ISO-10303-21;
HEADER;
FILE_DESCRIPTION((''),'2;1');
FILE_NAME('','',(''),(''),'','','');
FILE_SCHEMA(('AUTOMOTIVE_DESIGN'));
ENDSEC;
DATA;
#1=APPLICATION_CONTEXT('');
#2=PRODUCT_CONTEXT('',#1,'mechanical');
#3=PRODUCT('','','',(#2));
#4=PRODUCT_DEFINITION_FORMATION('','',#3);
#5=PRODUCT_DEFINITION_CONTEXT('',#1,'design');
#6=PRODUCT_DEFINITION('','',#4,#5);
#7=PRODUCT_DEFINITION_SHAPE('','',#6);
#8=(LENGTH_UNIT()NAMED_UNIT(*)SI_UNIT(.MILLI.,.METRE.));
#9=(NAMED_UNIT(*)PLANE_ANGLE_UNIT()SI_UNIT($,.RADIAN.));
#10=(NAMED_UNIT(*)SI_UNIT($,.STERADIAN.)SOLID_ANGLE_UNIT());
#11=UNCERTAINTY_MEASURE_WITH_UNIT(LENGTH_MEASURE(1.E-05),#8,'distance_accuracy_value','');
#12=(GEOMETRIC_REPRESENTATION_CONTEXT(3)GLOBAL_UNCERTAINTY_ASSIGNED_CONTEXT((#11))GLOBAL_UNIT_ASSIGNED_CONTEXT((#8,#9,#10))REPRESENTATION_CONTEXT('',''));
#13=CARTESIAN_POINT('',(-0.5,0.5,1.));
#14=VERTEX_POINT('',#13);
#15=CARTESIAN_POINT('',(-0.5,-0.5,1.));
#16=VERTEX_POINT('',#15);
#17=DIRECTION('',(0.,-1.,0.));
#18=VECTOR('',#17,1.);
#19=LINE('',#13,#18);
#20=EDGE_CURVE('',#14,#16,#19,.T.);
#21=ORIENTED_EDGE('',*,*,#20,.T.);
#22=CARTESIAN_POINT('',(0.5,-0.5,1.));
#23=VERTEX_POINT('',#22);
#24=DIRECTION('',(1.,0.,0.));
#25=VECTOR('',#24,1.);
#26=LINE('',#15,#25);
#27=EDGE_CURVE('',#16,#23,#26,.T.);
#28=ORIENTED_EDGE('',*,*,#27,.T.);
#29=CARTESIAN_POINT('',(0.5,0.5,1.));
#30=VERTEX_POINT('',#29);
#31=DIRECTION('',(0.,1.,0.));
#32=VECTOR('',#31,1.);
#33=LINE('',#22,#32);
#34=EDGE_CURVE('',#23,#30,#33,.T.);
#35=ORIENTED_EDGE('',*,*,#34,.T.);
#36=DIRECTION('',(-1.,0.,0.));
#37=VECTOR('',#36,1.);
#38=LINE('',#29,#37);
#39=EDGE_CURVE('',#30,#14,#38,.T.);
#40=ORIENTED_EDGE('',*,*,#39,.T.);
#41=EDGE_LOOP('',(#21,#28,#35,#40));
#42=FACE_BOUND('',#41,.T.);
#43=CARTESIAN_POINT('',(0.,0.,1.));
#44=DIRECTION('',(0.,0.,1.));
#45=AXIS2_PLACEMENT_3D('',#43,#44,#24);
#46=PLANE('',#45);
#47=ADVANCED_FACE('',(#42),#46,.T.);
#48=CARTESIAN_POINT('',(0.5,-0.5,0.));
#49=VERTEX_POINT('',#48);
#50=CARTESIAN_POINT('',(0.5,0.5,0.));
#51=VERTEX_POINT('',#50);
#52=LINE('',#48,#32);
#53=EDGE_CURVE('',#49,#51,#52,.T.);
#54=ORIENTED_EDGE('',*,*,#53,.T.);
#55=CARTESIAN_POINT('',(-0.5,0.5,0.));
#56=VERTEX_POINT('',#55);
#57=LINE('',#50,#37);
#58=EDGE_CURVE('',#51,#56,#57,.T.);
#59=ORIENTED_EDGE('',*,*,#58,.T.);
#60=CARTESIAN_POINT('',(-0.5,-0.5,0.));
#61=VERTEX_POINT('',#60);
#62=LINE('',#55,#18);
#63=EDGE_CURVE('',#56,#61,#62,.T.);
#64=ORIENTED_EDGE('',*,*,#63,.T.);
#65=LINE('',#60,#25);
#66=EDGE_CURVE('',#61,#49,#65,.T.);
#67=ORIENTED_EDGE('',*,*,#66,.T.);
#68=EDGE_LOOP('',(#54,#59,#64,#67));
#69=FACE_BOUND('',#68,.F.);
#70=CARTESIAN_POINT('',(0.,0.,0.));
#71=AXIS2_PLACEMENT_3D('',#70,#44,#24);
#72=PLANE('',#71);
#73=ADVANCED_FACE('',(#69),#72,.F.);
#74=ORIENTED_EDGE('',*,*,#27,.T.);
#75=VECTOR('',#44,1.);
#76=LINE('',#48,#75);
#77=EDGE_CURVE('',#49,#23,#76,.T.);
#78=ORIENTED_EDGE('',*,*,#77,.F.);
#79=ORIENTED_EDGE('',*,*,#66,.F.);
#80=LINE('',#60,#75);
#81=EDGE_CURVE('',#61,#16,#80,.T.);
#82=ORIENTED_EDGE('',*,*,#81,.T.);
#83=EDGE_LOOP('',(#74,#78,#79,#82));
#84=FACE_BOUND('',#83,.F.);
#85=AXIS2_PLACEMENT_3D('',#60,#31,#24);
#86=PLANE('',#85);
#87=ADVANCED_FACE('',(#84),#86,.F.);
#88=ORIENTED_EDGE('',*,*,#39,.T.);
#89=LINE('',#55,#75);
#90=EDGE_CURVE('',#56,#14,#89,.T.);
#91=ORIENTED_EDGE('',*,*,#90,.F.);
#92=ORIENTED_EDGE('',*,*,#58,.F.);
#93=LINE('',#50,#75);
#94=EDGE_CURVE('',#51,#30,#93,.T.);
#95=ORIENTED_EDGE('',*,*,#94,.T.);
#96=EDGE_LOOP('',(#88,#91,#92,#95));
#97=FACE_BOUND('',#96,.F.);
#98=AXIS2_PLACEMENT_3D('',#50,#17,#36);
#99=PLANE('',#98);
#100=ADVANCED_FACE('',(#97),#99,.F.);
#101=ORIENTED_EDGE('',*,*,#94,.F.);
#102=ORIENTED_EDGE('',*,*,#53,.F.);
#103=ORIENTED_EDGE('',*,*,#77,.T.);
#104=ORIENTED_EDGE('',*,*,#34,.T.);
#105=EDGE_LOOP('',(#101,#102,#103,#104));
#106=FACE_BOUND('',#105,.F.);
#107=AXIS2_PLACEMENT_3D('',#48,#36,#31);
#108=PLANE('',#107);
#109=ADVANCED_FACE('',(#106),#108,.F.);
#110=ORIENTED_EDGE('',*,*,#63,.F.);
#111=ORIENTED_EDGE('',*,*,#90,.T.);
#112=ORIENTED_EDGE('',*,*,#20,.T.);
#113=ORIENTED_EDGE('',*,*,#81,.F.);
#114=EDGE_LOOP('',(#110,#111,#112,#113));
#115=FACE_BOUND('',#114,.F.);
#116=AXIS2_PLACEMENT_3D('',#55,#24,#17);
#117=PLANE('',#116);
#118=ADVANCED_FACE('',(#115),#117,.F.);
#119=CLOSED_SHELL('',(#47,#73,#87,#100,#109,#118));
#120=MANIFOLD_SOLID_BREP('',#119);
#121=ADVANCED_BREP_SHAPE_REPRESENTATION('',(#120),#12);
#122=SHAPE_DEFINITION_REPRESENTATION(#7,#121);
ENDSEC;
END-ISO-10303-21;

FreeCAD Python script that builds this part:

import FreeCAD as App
import Part
import Sketcher
from FreeCAD import Vector
Q = App.Units.Quantity

doc = App.newDocument("Part")
params = doc.addObject("Spreadsheet::Sheet", "Params")
for row, (alias, value) in enumerate([
    ("sketch1_width", "1 mm"),
    ("pad1_length", "1 mm"),
], start=1):
    params.set(f"A{row}", alias)
    params.set(f"B{row}", "=" + value)
    params.setAlias(f"B{row}", alias)

body = doc.addObject("PartDesign::Body", "Body")

# Sketch on XY plane
sketch1 = doc.addObject("Sketcher::SketchObject", "Sketch")
body.addObject(sketch1)
sketch1.AttachmentSupport = (doc.XY_Plane, [""])
sketch1.MapMode = "FlatFace"
sketch1.addGeometry([
    Part.LineSegment(Vector(-0.5, 0.5, 0), Vector(-0.5, -0.5, 0)),
    Part.LineSegment(Vector(-0.5, -0.5, 0), Vector(0.5, -0.5, 0)),
    Part.LineSegment(Vector(0.5, -0.5, 0), Vector(0.5, 0.5, 0)),
    Part.LineSegment(Vector(0.5, 0.5, 0), Vector(-0.5, 0.5, 0)),
], False)
sketch1.addConstraint([
    Sketcher.Constraint("Coincident", 0, 2, 1, 1),
    Sketcher.Constraint("Coincident", 1, 2, 2, 1),
    Sketcher.Constraint("Coincident", 2, 2, 3, 1),
    Sketcher.Constraint("Coincident", 3, 2, 0, 1),
    Sketcher.Constraint("Vertical", 0),
    Sketcher.Constraint("Horizontal", 1),
    Sketcher.Constraint("Vertical", 2),
    Sketcher.Constraint("Horizontal", 3),
    Sketcher.Constraint("Symmetric", 0, 2, 2, 2, -1, 1),
    Sketcher.Constraint("Equal", 3, 0),
    Sketcher.Constraint("DistanceX", 1, 1, 1, 2, Q("1 mm")),
])
sketch1.setExpression("Constraints[10]", "Params.sketch1_width")
pad1 = doc.addObject("PartDesign::Pad", "Pad")
body.addObject(pad1)
pad1.Profile = sketch1
pad1.setExpression("Length", "Params.pad1_length")

doc.recompute()
